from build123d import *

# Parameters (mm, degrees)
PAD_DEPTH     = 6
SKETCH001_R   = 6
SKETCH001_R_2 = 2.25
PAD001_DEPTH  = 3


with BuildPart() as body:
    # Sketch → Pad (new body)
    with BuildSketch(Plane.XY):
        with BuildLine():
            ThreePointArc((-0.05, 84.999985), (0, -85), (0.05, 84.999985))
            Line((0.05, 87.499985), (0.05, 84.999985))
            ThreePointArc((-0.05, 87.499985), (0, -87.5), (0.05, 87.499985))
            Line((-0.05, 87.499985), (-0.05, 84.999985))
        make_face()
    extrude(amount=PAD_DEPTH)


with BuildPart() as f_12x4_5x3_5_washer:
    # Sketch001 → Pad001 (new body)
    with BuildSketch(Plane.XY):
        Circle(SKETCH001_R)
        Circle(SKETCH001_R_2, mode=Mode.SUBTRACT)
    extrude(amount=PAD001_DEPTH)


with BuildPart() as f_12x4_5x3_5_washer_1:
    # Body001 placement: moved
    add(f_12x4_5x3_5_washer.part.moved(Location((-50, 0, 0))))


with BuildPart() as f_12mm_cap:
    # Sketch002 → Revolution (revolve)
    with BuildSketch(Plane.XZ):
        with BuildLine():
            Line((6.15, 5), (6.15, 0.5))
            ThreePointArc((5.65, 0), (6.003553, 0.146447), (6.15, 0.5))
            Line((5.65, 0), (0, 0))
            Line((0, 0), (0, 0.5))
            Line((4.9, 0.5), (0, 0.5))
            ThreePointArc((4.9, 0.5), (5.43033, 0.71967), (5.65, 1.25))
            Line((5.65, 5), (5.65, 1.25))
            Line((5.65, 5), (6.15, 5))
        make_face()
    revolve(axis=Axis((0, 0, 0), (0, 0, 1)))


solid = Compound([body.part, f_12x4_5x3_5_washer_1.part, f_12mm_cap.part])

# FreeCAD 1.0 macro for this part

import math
import FreeCAD as App
import Part
import Sketcher

V = App.Vector
Q = App.Units.Quantity

doc = App.newDocument("Part")
body = doc.addObject("PartDesign::Body", "Body")

# Sketch on XY plane
sketch1 = doc.addObject("Sketcher::SketchObject", "Sketch")
body.addObject(sketch1)
sketch1.AttachmentSupport = (doc.XY_Plane, [""])
sketch1.MapMode = "FlatFace"
sketch1.addGeometry([
    Part.ArcOfCircle(Part.Circle(V(0, 0, 0), V(0, 0, 1), 85), math.radians(90), math.radians(450)),
    Part.LineSegment(V(-0.05, 85, 0), V(-0.05, 87.5, 0)),
    Part.ArcOfCircle(Part.Circle(V(0, 0, 0), V(0, 0, 1), 87.5), math.radians(90), math.radians(450)),
    Part.LineSegment(V(0.05, 87.5, 0), V(0.05, 85, 0)),
], False)
sketch1.addConstraint([
    Sketcher.Constraint("Coincident", 0, 1, 1, 1),
    Sketcher.Constraint("Coincident", 1, 2, 2, 1),
    Sketcher.Constraint("Coincident", 2, 2, 3, 1),
    Sketcher.Constraint("Coincident", 3, 2, 0, 2),
    Sketcher.Constraint("Vertical", 1),
    Sketcher.Constraint("Vertical", 3),
    Sketcher.Constraint("Coincident", 0, 3, -1, 1),
    Sketcher.Constraint("Coincident", 2, 3, -1, 1),
    Sketcher.Constraint("Radius", 0, Q("85 mm")),
    Sketcher.Constraint("Radius", 2, Q("87.5 mm")),
    Sketcher.Constraint("DistanceX", 1, 2, 2, 2, Q("0.1 mm")),
    Sketcher.Constraint("DistanceX", 0, 1, -1, 1, Q("0.05 mm")),
])
pad1 = doc.addObject("PartDesign::Pad", "Pad")
body.addObject(pad1)
pad1.Profile = sketch1
pad1.Length = 6
body2 = doc.addObject("PartDesign::Body", "Body001")

# Sketch on XY plane
sketch2 = doc.addObject("Sketcher::SketchObject", "Sketch001")
body2.addObject(sketch2)
sketch2.AttachmentSupport = (doc.getObject("XY_Plane001"), [""])
sketch2.MapMode = "FlatFace"
sketch2.addGeometry([
    Part.Circle(V(0, 0, 0), V(0, 0, 1), 6),
    Part.Circle(V(0, 0, 0), V(0, 0, 1), 2.2),
], False)
sketch2.addConstraint([
    Sketcher.Constraint("Coincident", 0, 3, -1, 1),
    Sketcher.Constraint("Coincident", 1, 3, -1, 1),
    Sketcher.Constraint("Diameter", 0, Q("12 mm")),
    Sketcher.Constraint("Diameter", 1, Q("4.5 mm")),
])
pad2 = doc.addObject("PartDesign::Pad", "Pad001")
body2.addObject(pad2)
pad2.Profile = sketch2
pad2.Length = 3
body3 = doc.addObject("PartDesign::Body", "Body002")
doc.recompute()

body2.Placement = App.Placement(V(-50, 0, 0), App.Rotation(V(0, 0, 1), 0))
boolean = doc.addObject("PartDesign::Boolean", "Boolean")
body3.addObject(boolean)
boolean.Type = "Fuse"
boolean.addObjects([body2])
body4 = doc.addObject("PartDesign::Body", "Body003")

# Sketch on XZ plane
sketch3 = doc.addObject("Sketcher::SketchObject", "Sketch002")
body4.addObject(sketch3)
sketch3.AttachmentSupport = (doc.getObject("XZ_Plane003"), [""])
sketch3.MapMode = "FlatFace"
sketch3.addGeometry([
    Part.LineSegment(V(6.2, 0.5, 0), V(6.2, 5, 0)),  # 0
    Part.LineSegment(V(6.2, 5, 0), V(5.7, 5, 0)),  # 1
    Part.LineSegment(V(5.7, 5, 0), V(5.7, 1.2, 0)),  # 2
    Part.ArcOfCircle(Part.Circle(V(4.9, 1.3, 0), V(0, 0, 1), 0.8), math.radians(-90), math.radians(0)),  # 3
    Part.LineSegment(V(4.9, 0.5, 0), V(0, 0.5, 0)),  # 4
    Part.LineSegment(V(0, 0.5, 0), V(0, 0, 0)),  # 5
    Part.LineSegment(V(0, 0, 0), V(5.7, 0, 0)),  # 6
    Part.ArcOfCircle(Part.Circle(V(5.6, 0.5, 0), V(0, 0, 1), 0.5), math.radians(-90), math.radians(0)),  # 7
], False)
sketch3.addConstraint([
    Sketcher.Constraint("Coincident", 0, 2, 1, 1),
    Sketcher.Constraint("Coincident", 1, 2, 2, 1),
    Sketcher.Constraint("Tangent", 2, 2, 3, 2),
    Sketcher.Constraint("Tangent", 3, 1, 4, 1),
    Sketcher.Constraint("Coincident", 4, 2, 5, 1),
    Sketcher.Constraint("Coincident", 5, 2, 6, 1),
    Sketcher.Constraint("Coincident", 6, 2, 7, 1),
    Sketcher.Constraint("Coincident", 7, 2, 0, 1),
    Sketcher.Constraint("Vertical", 0),
    Sketcher.Constraint("Horizontal", 1),
    Sketcher.Constraint("Vertical", 2),
    Sketcher.Constraint("Horizontal", 4),
    Sketcher.Constraint("Vertical", 5),
    Sketcher.Constraint("Horizontal", 6),
    Sketcher.Constraint("Coincident", 5, 2, -1, 1),
    Sketcher.Constraint("Horizontal", 7, 3, 3, 1),
    Sketcher.Constraint("Horizontal", 4, 2, 7, 2),
    Sketcher.Constraint("Vertical", 7, 3, 1, 2),
    Sketcher.Constraint("Vertical", 2, 2, 6, 2),
    Sketcher.Constraint("Radius", 7, Q("0.500001 mm")),
    Sketcher.Constraint("Radius", 3, Q("0.75 mm")),
    Sketcher.Constraint("DistanceX", 4, 2, 4, 1, Q("4.9 mm")),
    Sketcher.Constraint("DistanceY", 0, 1, 0, 2, Q("4.5 mm")),
])
revolution = doc.addObject("PartDesign::Revolution", "Revolution")
body4.addObject(revolution)
revolution.Profile = sketch3
revolution.ReferenceAxis = (sketch3, ["V_Axis"])
revolution.Angle = 360

doc.recompute()
